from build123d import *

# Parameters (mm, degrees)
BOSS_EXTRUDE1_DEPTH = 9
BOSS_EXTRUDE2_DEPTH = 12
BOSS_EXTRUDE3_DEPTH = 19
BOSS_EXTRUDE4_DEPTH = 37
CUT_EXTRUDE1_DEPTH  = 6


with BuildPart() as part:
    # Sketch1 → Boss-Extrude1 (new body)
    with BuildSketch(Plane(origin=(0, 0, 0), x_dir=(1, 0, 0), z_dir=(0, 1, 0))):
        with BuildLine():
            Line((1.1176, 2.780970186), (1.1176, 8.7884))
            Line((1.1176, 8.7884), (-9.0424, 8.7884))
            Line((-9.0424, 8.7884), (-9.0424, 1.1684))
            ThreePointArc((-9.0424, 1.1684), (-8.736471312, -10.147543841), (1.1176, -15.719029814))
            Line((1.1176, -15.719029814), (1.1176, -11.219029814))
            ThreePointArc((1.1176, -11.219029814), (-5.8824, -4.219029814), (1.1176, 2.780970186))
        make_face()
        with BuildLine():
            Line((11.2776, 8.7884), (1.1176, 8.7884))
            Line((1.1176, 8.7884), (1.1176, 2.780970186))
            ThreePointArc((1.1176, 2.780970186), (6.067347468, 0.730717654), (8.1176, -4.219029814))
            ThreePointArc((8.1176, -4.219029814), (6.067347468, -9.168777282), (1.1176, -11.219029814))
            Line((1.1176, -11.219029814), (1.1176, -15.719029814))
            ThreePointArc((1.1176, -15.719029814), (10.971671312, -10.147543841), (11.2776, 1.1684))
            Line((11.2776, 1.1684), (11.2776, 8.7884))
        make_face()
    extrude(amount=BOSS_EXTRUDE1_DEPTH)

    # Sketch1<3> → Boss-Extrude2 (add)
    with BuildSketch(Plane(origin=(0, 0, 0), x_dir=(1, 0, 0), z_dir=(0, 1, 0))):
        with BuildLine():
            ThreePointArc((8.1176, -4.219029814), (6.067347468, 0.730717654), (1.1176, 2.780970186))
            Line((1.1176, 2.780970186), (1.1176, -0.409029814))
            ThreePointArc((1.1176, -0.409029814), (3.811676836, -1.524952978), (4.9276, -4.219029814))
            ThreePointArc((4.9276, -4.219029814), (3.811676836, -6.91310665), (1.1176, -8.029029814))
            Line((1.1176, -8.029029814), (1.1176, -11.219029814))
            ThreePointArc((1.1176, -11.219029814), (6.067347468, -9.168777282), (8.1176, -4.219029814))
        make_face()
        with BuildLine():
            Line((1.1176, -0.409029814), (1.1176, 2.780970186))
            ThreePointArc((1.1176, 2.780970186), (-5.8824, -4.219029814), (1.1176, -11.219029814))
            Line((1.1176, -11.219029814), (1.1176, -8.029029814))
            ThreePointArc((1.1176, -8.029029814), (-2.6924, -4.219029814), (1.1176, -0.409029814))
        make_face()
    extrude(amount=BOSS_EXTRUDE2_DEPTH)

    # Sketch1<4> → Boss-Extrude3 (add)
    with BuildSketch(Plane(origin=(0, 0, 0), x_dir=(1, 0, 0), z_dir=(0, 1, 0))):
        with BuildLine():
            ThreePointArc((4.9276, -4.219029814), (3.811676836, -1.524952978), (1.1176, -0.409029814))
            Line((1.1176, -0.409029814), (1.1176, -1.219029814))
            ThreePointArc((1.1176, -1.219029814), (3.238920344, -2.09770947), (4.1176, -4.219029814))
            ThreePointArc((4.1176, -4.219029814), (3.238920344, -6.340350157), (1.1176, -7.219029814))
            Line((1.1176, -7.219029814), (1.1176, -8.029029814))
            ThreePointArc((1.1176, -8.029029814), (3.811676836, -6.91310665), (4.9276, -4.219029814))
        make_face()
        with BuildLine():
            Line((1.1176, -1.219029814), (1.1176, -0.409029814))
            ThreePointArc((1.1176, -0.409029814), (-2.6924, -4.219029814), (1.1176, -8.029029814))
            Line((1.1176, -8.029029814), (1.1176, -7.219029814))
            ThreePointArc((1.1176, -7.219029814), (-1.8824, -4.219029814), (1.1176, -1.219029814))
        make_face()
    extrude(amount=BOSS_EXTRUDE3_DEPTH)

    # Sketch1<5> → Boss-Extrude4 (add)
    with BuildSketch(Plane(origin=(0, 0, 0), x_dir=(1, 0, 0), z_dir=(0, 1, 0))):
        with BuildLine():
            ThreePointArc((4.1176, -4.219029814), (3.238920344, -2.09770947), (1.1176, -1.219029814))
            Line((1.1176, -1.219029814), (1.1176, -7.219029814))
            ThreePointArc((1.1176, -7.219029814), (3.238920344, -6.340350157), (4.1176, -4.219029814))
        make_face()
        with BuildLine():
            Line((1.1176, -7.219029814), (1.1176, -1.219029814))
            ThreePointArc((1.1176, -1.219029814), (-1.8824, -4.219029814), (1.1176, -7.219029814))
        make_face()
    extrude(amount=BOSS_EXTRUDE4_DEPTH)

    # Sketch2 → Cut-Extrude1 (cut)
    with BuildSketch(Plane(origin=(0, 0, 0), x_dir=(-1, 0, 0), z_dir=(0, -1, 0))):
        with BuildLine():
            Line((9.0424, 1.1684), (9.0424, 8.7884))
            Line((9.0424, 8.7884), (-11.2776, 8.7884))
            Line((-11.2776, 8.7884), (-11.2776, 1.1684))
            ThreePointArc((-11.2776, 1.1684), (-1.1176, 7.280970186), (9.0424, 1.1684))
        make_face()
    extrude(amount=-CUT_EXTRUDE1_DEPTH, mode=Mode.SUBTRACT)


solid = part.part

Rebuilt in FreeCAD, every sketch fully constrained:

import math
import FreeCAD as App
import Part
import Sketcher
from FreeCAD import Vector

doc = App.newDocument("Part")
params = doc.addObject("Spreadsheet::Sheet", "Params")
for row, (alias, value) in enumerate([
    ("sketch1_radius", "7 mm"),
    ("sketch1_radius2", "11.5 mm"),
    ("sketch1_width", "20.32 mm"),
    ("sketch1_height", "7.62 mm"),
    ("pad1_length", "9 mm"),
    ("sketch2_radius", "7 mm"),
    ("sketch2_radius2", "3.81 mm"),
    ("pad2_length", "12 mm"),
    ("sketch3_radius", "3 mm"),
    ("sketch3_radius2", "3.81 mm"),
    ("pad3_length", "19 mm"),
    ("sketch4_radius", "3 mm"),
    ("pad4_length", "37 mm"),
    ("sketch5_radius", "11.5 mm"),
    ("sketch5_width", "20.32 mm"),
    ("sketch5_height", "7.62 mm"),
    ("pocket1_length", "6 mm"),
], start=1):
    params.set(f"A{row}", alias)
    params.set(f"B{row}", "=" + value)
    params.setAlias(f"B{row}", alias)

body = doc.addObject("PartDesign::Body", "Body")

# Sketch on XZ plane
sketch1 = body.newObject("Sketcher::SketchObject", "Sketch")
sketch1.AttachmentSupport = (doc.getObject("XZ_Plane"), [""])
sketch1.MapMode = "FlatFace"
sketch1.addGeometry(Part.LineSegment(Vector(-9.0424, -8.7884, 0), Vector(-9.0424, -1.1684, 0)), False)
sketch1.addGeometry(Part.ArcOfCircle(Part.Circle(Vector(1.1176, 4.21903, 0), Vector(0, 0, 1), 11.5), math.radians(90), math.radians(207.935167)), False)
sketch1.addGeometry(Part.ArcOfCircle(Part.Circle(Vector(1.1176, 4.21903, 0), Vector(0, 0, 1), 11.5), math.radians(-27.935167), math.radians(90)), False)
sketch1.addGeometry(Part.LineSegment(Vector(11.2776, -1.1684, 0), Vector(11.2776, -8.7884, 0)), False)
sketch1.addGeometry(Part.LineSegment(Vector(11.2776, -8.7884, 0), Vector(-9.0424, -8.7884, 0)), False)
sketch1.addGeometry(Part.ArcOfCircle(Part.Circle(Vector(1.1176, 4.21903, 0), Vector(0, 0, 1), 7), math.radians(90), math.radians(270)), False)
sketch1.addGeometry(Part.ArcOfCircle(Part.Circle(Vector(1.1176, 4.21903, 0), Vector(0, 0, 1), 7), math.radians(-90), math.radians(0)), False)
sketch1.addGeometry(Part.ArcOfCircle(Part.Circle(Vector(1.1176, 4.21903, 0), Vector(0, 0, 1), 7), math.radians(0), math.radians(90)), False)
sketch1.addConstraint(Sketcher.Constraint("Coincident", 0, 2, 1, 2))
sketch1.addConstraint(Sketcher.Constraint("Tangent", 1, 1, 2, 2))
sketch1.addConstraint(Sketcher.Constraint("Coincident", 2, 1, 3, 1))
sketch1.addConstraint(Sketcher.Constraint("Coincident", 3, 2, 4, 1))
sketch1.addConstraint(Sketcher.Constraint("Coincident", 4, 2, 0, 1))
sketch1.addConstraint(Sketcher.Constraint("Tangent", 5, 2, 6, 1))
sketch1.addConstraint(Sketcher.Constraint("Tangent", 6, 2, 7, 1))
sketch1.addConstraint(Sketcher.Constraint("Tangent", 7, 2, 5, 1))
sketch1.addConstraint(Sketcher.Constraint("Vertical", 0))
sketch1.addConstraint(Sketcher.Constraint("Vertical", 3))
sketch1.addConstraint(Sketcher.Constraint("Horizontal", 4))
sketch1.addConstraint(Sketcher.Constraint("Coincident", 5, 3, 1, 3))
sketch1.addConstraint(Sketcher.Constraint("Equal", 1, 2))
sketch1.addConstraint(Sketcher.Constraint("Horizontal", 0, 2, 2, 1))
sketch1.addConstraint(Sketcher.Constraint("Horizontal", 7, 3, 6, 2))
sketch1.addConstraint(Sketcher.Constraint("Vertical", 7, 3, 1, 1))
sketch1.addConstraint(Sketcher.Constraint("Vertical", 1, 1, 5, 2))
sketch1.addConstraint(Sketcher.Constraint("Vertical", 5, 2, 7, 2))
sketch1.addConstraint(Sketcher.Constraint("Radius", 5, 7.0))
sketch1.addConstraint(Sketcher.Constraint("Radius", 1, 11.5))
sketch1.addConstraint(Sketcher.Constraint("DistanceX", 4, 2, 4, 1, 20.32))
sketch1.addConstraint(Sketcher.Constraint("DistanceY", 0, 1, 0, 2, 7.62))
sketch1.addConstraint(Sketcher.Constraint("DistanceX", -1, 1, 1, 3, 1.1176))
sketch1.addConstraint(Sketcher.Constraint("DistanceY", 0, 2, -1, 1, 1.1684))
sketch1.setExpression("Constraints[18]", "Params.sketch1_radius")
sketch1.setExpression("Constraints[19]", "Params.sketch1_radius2")
sketch1.setExpression("Constraints[20]", "Params.sketch1_width")
sketch1.setExpression("Constraints[21]", "Params.sketch1_height")
pad1 = body.newObject("PartDesign::Pad", "Pad")
pad1.Profile = sketch1
pad1.setExpression("Length", "Params.pad1_length")
pad1.Reversed = True

# Sketch on XZ plane
sketch2 = body.newObject("Sketcher::SketchObject", "Sketch001")
sketch2.AttachmentSupport = (doc.getObject("XZ_Plane"), [""])
sketch2.MapMode = "FlatFace"
sketch2.addGeometry(Part.ArcOfCircle(Part.Circle(Vector(1.1176, 4.21903, 0), Vector(0, 0, 1), 7), math.radians(-90), math.radians(0)), False)
sketch2.addGeometry(Part.ArcOfCircle(Part.Circle(Vector(1.1176, 4.21903, 0), Vector(0, 0, 1), 7), math.radians(90), math.radians(270)), False)
sketch2.addGeometry(Part.ArcOfCircle(Part.Circle(Vector(1.1176, 4.21903, 0), Vector(0, 0, 1), 7), math.radians(0), math.radians(90)), False)
sketch2.addGeometry(Part.ArcOfCircle(Part.Circle(Vector(1.1176, 4.21903, 0), Vector(0, 0, 1), 3.81), math.radians(0), math.radians(90)), False)
sketch2.addGeometry(Part.ArcOfCircle(Part.Circle(Vector(1.1176, 4.21903, 0), Vector(0, 0, 1), 3.81), math.radians(90), math.radians(270)), False)
sketch2.addGeometry(Part.ArcOfCircle(Part.Circle(Vector(1.1176, 4.21903, 0), Vector(0, 0, 1), 3.81), math.radians(-90), math.radians(0)), False)
sketch2.addConstraint(Sketcher.Constraint("Tangent", 0, 1, 1, 2))
sketch2.addConstraint(Sketcher.Constraint("Tangent", 1, 1, 2, 2))
sketch2.addConstraint(Sketcher.Constraint("Tangent", 2, 1, 0, 2))
sketch2.addConstraint(Sketcher.Constraint("Tangent", 3, 2, 4, 1))
sketch2.addConstraint(Sketcher.Constraint("Tangent", 4, 2, 5, 1))
sketch2.addConstraint(Sketcher.Constraint("Tangent", 5, 2, 3, 1))
sketch2.addConstraint(Sketcher.Constraint("Coincident", 3, 3, 0, 3))
sketch2.addConstraint(Sketcher.Constraint("Horizontal", 5, 3, 2, 1))
sketch2.addConstraint(Sketcher.Constraint("Horizontal", 2, 1, 5, 2))
sketch2.addConstraint(Sketcher.Constraint("Vertical", 5, 3, 0, 1))
sketch2.addConstraint(Sketcher.Constraint("Vertical", 0, 1, 1, 1))
sketch2.addConstraint(Sketcher.Constraint("Vertical", 1, 1, 3, 2))
sketch2.addConstraint(Sketcher.Constraint("Vertical", 3, 2, 4, 2))
sketch2.addConstraint(Sketcher.Constraint("Radius", 0, 7.0))
sketch2.addConstraint(Sketcher.Constraint("Radius", 3, 3.81))
sketch2.addConstraint(Sketcher.Constraint("DistanceX", -1, 1, 0, 3, 1.1176))
sketch2.addConstraint(Sketcher.Constraint("DistanceY", -1, 1, 0, 3, 4.21903))
sketch2.setExpression("Constraints[13]", "Params.sketch2_radius")
sketch2.setExpression("Constraints[14]", "Params.sketch2_radius2")
pad2 = body.newObject("PartDesign::Pad", "Pad001")
pad2.Profile = sketch2
pad2.setExpression("Length", "Params.pad2_length")
pad2.Reversed = True

# Sketch on XZ plane
sketch3 = body.newObject("Sketcher::SketchObject", "Sketch002")
sketch3.AttachmentSupport = (doc.getObject("XZ_Plane"), [""])
sketch3.MapMode = "FlatFace"
sketch3.addGeometry(Part.ArcOfCircle(Part.Circle(Vector(1.1176, 4.21903, 0), Vector(0, 0, 1), 3.81), math.radians(-90), math.radians(0)), False)
sketch3.addGeometry(Part.ArcOfCircle(Part.Circle(Vector(1.1176, 4.21903, 0), Vector(0, 0, 1), 3.81), math.radians(90), math.radians(270)), False)
sketch3.addGeometry(Part.ArcOfCircle(Part.Circle(Vector(1.1176, 4.21903, 0), Vector(0, 0, 1), 3.81), math.radians(0), math.radians(90)), False)
sketch3.addGeometry(Part.ArcOfCircle(Part.Circle(Vector(1.1176, 4.21903, 0), Vector(0, 0, 1), 3), math.radians(0), math.radians(90)), False)
sketch3.addGeometry(Part.ArcOfCircle(Part.Circle(Vector(1.1176, 4.21903, 0), Vector(0, 0, 1), 3), math.radians(90), math.radians(270)), False)
sketch3.addGeometry(Part.ArcOfCircle(Part.Circle(Vector(1.1176, 4.21903, 0), Vector(0, 0, 1), 3), math.radians(-90), math.radians(0)), False)
sketch3.addConstraint(Sketcher.Constraint("Tangent", 0, 1, 1, 2))
sketch3.addConstraint(Sketcher.Constraint("Tangent", 1, 1, 2, 2))
sketch3.addConstraint(Sketcher.Constraint("Tangent", 2, 1, 0, 2))
sketch3.addConstraint(Sketcher.Constraint("Tangent", 3, 2, 4, 1))
sketch3.addConstraint(Sketcher.Constraint("Tangent", 4, 2, 5, 1))
sketch3.addConstraint(Sketcher.Constraint("Tangent", 5, 2, 3, 1))
sketch3.addConstraint(Sketcher.Constraint("Coincident", 3, 3, 0, 3))
sketch3.addConstraint(Sketcher.Constraint("Horizontal", 5, 3, 2, 1))
sketch3.addConstraint(Sketcher.Constraint("Horizontal", 2, 1, 5, 2))
sketch3.addConstraint(Sketcher.Constraint("Vertical", 5, 3, 0, 1))
sketch3.addConstraint(Sketcher.Constraint("Vertical", 0, 1, 1, 1))
sketch3.addConstraint(Sketcher.Constraint("Vertical", 1, 1, 3, 2))
sketch3.addConstraint(Sketcher.Constraint("Vertical", 3, 2, 4, 2))
sketch3.addConstraint(Sketcher.Constraint("Radius", 3, 3.0))
sketch3.addConstraint(Sketcher.Constraint("Radius", 0, 3.81))
sketch3.addConstraint(Sketcher.Constraint("DistanceX", -1, 1, 0, 3, 1.1176))
sketch3.addConstraint(Sketcher.Constraint("DistanceY", -1, 1, 0, 3, 4.21903))
sketch3.setExpression("Constraints[13]", "Params.sketch3_radius")
sketch3.setExpression("Constraints[14]", "Params.sketch3_radius2")
pad3 = body.newObject("PartDesign::Pad", "Pad002")
pad3.Profile = sketch3
pad3.setExpression("Length", "Params.pad3_length")
pad3.Reversed = True

# Sketch on XZ plane
sketch4 = body.newObject("Sketcher::SketchObject", "Sketch003")
sketch4.AttachmentSupport = (doc.getObject("XZ_Plane"), [""])
sketch4.MapMode = "FlatFace"
sketch4.addGeometry(Part.ArcOfCircle(Part.Circle(Vector(1.1176, 4.21903, 0), Vector(0, 0, 1), 3), math.radians(-90), math.radians(0)), False)
sketch4.addGeometry(Part.ArcOfCircle(Part.Circle(Vector(1.1176, 4.21903, 0), Vector(0, 0, 1), 3), math.radians(90), math.radians(270)), False)
sketch4.addGeometry(Part.ArcOfCircle(Part.Circle(Vector(1.1176, 4.21903, 0), Vector(0, 0, 1), 3), math.radians(0), math.radians(90)), False)
sketch4.addConstraint(Sketcher.Constraint("Tangent", 0, 1, 1, 2))
sketch4.addConstraint(Sketcher.Constraint("Tangent", 1, 1, 2, 2))
sketch4.addConstraint(Sketcher.Constraint("Tangent", 2, 1, 0, 2))
sketch4.addConstraint(Sketcher.Constraint("Horizontal", 1, 3, 2, 1))
sketch4.addConstraint(Sketcher.Constraint("Vertical", 2, 3, 0, 1))
sketch4.addConstraint(Sketcher.Constraint("Vertical", 0, 1, 1, 1))
sketch4.addConstraint(Sketcher.Constraint("Radius", 0, 3.0))
sketch4.addConstraint(Sketcher.Constraint("DistanceX", -1, 1, 0, 3, 1.1176))
sketch4.addConstraint(Sketcher.Constraint("DistanceY", -1, 1, 0, 3, 4.21903))
sketch4.setExpression("Constraints[6]", "Params.sketch4_radius")
pad4 = body.newObject("PartDesign::Pad", "Pad003")
pad4.Profile = sketch4
pad4.setExpression("Length", "Params.pad4_length")
pad4.Reversed = True

# Sketch on XZ plane
sketch5 = body.newObject("Sketcher::SketchObject", "Sketch004")
sketch5.AttachmentSupport = (doc.getObject("XZ_Plane"), [""])
sketch5.MapMode = "FlatFace"
sketch5.addGeometry(Part.LineSegment(Vector(-9.0424, -1.1684, 0), Vector(-9.0424, -8.7884, 0)), False)
sketch5.addGeometry(Part.LineSegment(Vector(-9.0424, -8.7884, 0), Vector(11.2776, -8.7884, 0)), False)
sketch5.addGeometry(Part.LineSegment(Vector(11.2776, -8.7884, 0), Vector(11.2776, -1.1684, 0)), False)
sketch5.addGeometry(Part.ArcOfCircle(Part.Circle(Vector(1.1176, 4.21903, 0), Vector(0, 0, 1), 11.5), math.radians(-152.064833), math.radians(-27.935167)), False)
sketch5.addConstraint(Sketcher.Constraint("Coincident", 0, 2, 1, 1))
sketch5.addConstraint(Sketcher.Constraint("Coincident", 1, 2, 2, 1))
sketch5.addConstraint(Sketcher.Constraint("Coincident", 2, 2, 3, 2))
sketch5.addConstraint(Sketcher.Constraint("Coincident", 3, 1, 0, 1))
sketch5.addConstraint(Sketcher.Constraint("Vertical", 0))
sketch5.addConstraint(Sketcher.Constraint("Horizontal", 1))
sketch5.addConstraint(Sketcher.Constraint("Vertical", 2))
sketch5.addConstraint(Sketcher.Constraint("Horizontal", 2, 2, 3, 1))
sketch5.addConstraint(Sketcher.Constraint("Radius", 3, 11.5))
sketch5.addConstraint(Sketcher.Constraint("DistanceX", 1, 1, 1, 2, 20.32))
sketch5.addConstraint(Sketcher.Constraint("DistanceY", 0, 2, 0, 1, 7.62))
sketch5.addConstraint(Sketcher.Constraint("DistanceX", -1, 1, 3, 3, 1.1176))
sketch5.addConstraint(Sketcher.Constraint("DistanceY", 0, 2, -1, 1, 8.7884))
sketch5.setExpression("Constraints[8]", "Params.sketch5_radius")
sketch5.setExpression("Constraints[9]", "Params.sketch5_width")
sketch5.setExpression("Constraints[10]", "Params.sketch5_height")
pocket1 = body.newObject("PartDesign::Pocket", "Pocket")
pocket1.Profile = sketch5
pocket1.setExpression("Length", "Params.pocket1_length")

doc.recompute()
